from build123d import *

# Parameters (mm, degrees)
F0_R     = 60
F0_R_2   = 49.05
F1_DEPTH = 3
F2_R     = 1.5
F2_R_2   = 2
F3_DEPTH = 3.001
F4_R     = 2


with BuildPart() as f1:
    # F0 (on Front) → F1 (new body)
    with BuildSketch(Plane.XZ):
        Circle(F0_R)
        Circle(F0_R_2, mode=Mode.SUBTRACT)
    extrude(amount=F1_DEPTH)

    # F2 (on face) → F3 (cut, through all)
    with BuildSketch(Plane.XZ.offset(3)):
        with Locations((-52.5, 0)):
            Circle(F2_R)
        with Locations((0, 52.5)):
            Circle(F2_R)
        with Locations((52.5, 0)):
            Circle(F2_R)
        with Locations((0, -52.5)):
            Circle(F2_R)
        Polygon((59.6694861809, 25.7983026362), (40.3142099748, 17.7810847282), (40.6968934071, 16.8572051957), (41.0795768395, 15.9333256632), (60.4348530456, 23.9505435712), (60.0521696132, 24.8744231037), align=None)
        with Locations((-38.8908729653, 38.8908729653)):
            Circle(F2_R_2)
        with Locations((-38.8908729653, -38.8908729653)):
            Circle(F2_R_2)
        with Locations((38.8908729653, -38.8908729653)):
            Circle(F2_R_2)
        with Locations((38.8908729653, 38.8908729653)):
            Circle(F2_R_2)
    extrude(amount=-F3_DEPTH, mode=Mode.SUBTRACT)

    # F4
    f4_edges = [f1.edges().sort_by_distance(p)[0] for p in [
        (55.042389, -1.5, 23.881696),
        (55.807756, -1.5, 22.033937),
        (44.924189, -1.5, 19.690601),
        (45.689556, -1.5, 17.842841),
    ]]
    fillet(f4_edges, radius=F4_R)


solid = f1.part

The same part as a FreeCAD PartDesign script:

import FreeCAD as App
import Part
import Sketcher

V = App.Vector
Q = App.Units.Quantity


def edges_at(feature, points):
    """Names of the edges that pass closest to the given points."""
    edges = feature.Shape.Edges
    near = lambda p: min(range(len(edges)), key=lambda i: edges[i].distToShape(Part.Vertex(*p))[0])
    return sorted({f"Edge{near(p) + 1}" for p in points})


def add_polygon(sketch, points):
    """Adds a closed chain of lines whose ends are joined by coincident constraints."""
    first, n = sketch.GeometryCount, len(points)
    for a, b in zip(points, points[1:] + points[:1]):
        sketch.addGeometry(Part.LineSegment(App.Vector(*a, 0), App.Vector(*b, 0)), False)
    for i in range(n):
        sketch.addConstraint(Sketcher.Constraint("Coincident", first + i, 2, first + (i + 1) % n, 1))

doc = App.newDocument("Part")
params = doc.addObject("Spreadsheet::Sheet", "Params")
for row, (alias, value) in enumerate([
    ("sketch1_diameter", "120 mm"),
    ("sketch1_diameter2", "98.1 mm"),
    ("pad1_length", "3 mm"),
    ("sketch2_diameter", "3 mm"),
    ("sketch2_diameter2", "4 mm"),
    ("sketch2_length", "1 mm"),
    ("sketch2_length2", "20.95 mm"),
    ("fillet_radius", "2 mm"),
], start=1):
    params.set(f"A{row}", alias)
    params.set(f"B{row}", "=" + value)
    params.setAlias(f"B{row}", alias)

body = doc.addObject("PartDesign::Body", "Body")

# Sketch on XZ plane
sketch1 = body.newObject("Sketcher::SketchObject", "Sketch")
sketch1.AttachmentSupport = (doc.getObject("XZ_Plane"), [""])
sketch1.MapMode = "FlatFace"
sketch1.addGeometry(Part.Circle(V(0, 0, 0), V(0, 0, 1), 60), False)
sketch1.addGeometry(Part.Circle(V(0, 0, 0), V(0, 0, 1), 49), False)
sketch1.addConstraint(Sketcher.Constraint("Coincident", 0, 3, -1, 1))
sketch1.addConstraint(Sketcher.Constraint("Coincident", 1, 3, -1, 1))
sketch1.addConstraint(Sketcher.Constraint("Diameter", 0, Q("120 mm")))
sketch1.addConstraint(Sketcher.Constraint("Diameter", 1, Q("98.1 mm")))
sketch1.setExpression("Constraints[2]", "Params.sketch1_diameter")
sketch1.setExpression("Constraints[3]", "Params.sketch1_diameter2")
pad1 = body.newObject("PartDesign::Pad", "Pad")
pad1.Profile = sketch1
pad1.setExpression("Length", "Params.pad1_length")

# Sketch on XZ plane
sketch2 = body.newObject("Sketcher::SketchObject", "Sketch001")
sketch2.AttachmentSupport = (doc.getObject("XZ_Plane"), [""])
sketch2.MapMode = "FlatFace"
sketch2.AttachmentOffset = App.Placement(V(0, 0, 3), App.Rotation())
sketch2.addGeometry(Part.Circle(V(-52.5, 0, 0), V(0, 0, 1), 1.5), False)  # 0
sketch2.addGeometry(Part.Circle(V(0, 52.5, 0), V(0, 0, 1), 1.5), False)  # 1
sketch2.addGeometry(Part.Circle(V(52.5, 0, 0), V(0, 0, 1), 1.5), False)  # 2
sketch2.addGeometry(Part.Circle(V(0, -52.5, 0), V(0, 0, 1), 1.5), False)  # 3
add_polygon(sketch2, [(59.7, 25.8), (40.3, 17.8), (40.7, 16.9), (41.1, 15.9), (60.4, 24), (60.1, 24.9)])  # lines 4-9
sketch2.addGeometry(Part.Circle(V(-38.9, 38.9, 0), V(0, 0, 1), 2), False)  # 10
sketch2.addGeometry(Part.Circle(V(-38.9, -38.9, 0), V(0, 0, 1), 2), False)  # 11
sketch2.addGeometry(Part.Circle(V(38.9, -38.9, 0), V(0, 0, 1), 2), False)  # 12
sketch2.addGeometry(Part.Circle(V(38.9, 38.9, 0), V(0, 0, 1), 2), False)  # 13
sketch2.addConstraint(Sketcher.Constraint("Equal", 0, 1))
sketch2.addConstraint(Sketcher.Constraint("Equal", 1, 2))
sketch2.addConstraint(Sketcher.Constraint("Equal", 2, 3))
sketch2.addConstraint(Sketcher.Constraint("Equal", 10, 11))
sketch2.addConstraint(Sketcher.Constraint("Equal", 11, 12))
sketch2.addConstraint(Sketcher.Constraint("Equal", 12, 13))
sketch2.addConstraint(Sketcher.Constraint("Symmetric", 0, 3, 2, 3, -1, 1))
sketch2.addConstraint(Sketcher.Constraint("Symmetric", 1, 3, 3, 3, -1, 1))
sketch2.addConstraint(Sketcher.Constraint("Symmetric", 10, 3, 12, 3, -1, 1))
sketch2.addConstraint(Sketcher.Constraint("Symmetric", 11, 3, 13, 3, -1, 1))
sketch2.addConstraint(Sketcher.Constraint("Symmetric", 11, 3, 12, 3, -2))
sketch2.addConstraint(Sketcher.Constraint("PointOnObject", 0, 3, -1))
sketch2.addConstraint(Sketcher.Constraint("PointOnObject", 1, 3, -2))
sketch2.addConstraint(Sketcher.Constraint("Perpendicular", 4, 5))
sketch2.addConstraint(Sketcher.Constraint("Parallel", 5, 6))
sketch2.addConstraint(Sketcher.Constraint("Perpendicular", 6, 7))
sketch2.addConstraint(Sketcher.Constraint("Perpendicular", 7, 8))
sketch2.addConstraint(Sketcher.Constraint("Parallel", 8, 9))
sketch2.addConstraint(Sketcher.Constraint("Equal", 5, 6))
sketch2.addConstraint(Sketcher.Constraint("Equal", 6, 8))
sketch2.addConstraint(Sketcher.Constraint("Diameter", 0, Q("3 mm")))
sketch2.addConstraint(Sketcher.Constraint("Diameter", 10, Q("4 mm")))
sketch2.addConstraint(Sketcher.Constraint("Distance", 5, Q("1 mm")))
sketch2.addConstraint(Sketcher.Constraint("Angle", 4, Q("-157.5 deg")))
sketch2.addConstraint(Sketcher.Constraint("DistanceX", 0, 3, 2, 3, Q("105 mm")))
sketch2.addConstraint(Sketcher.Constraint("DistanceY", 3, 3, 1, 3, Q("105 mm")))
sketch2.addConstraint(Sketcher.Constraint("Distance", 4, Q("20.95 mm")))
sketch2.addConstraint(Sketcher.Constraint("DistanceY", 12, 3, 6, 2, Q("54.824199 mm")))
sketch2.addConstraint(Sketcher.Constraint("DistanceX", -1, 1, 4, 2, Q("40.31421 mm")))
sketch2.addConstraint(Sketcher.Constraint("DistanceY", 4, 2, 13, 3, Q("21.109788 mm")))
sketch2.addConstraint(Sketcher.Constraint("DistanceX", 13, 3, 5, 2, Q("1.80602 mm")))
sketch2.setExpression("Constraints[26]", "Params.sketch2_diameter")
sketch2.setExpression("Constraints[27]", "Params.sketch2_diameter2")
sketch2.setExpression("Constraints[28]", "Params.sketch2_length")
sketch2.setExpression("Constraints[32]", "Params.sketch2_length2")
pocket1 = body.newObject("PartDesign::Pocket", "Pocket")
pocket1.Profile = sketch2
pocket1.Type = "ThroughAll"
doc.recompute()

fillet = body.newObject("PartDesign::Fillet", "Fillet")
fillet.Base = (pocket1, edges_at(pocket1, [
    (55.042, -1.5, 23.882),
    (55.808, -1.5, 22.034),
    (44.924, -1.5, 19.691),
    (45.69, -1.5, 17.843),
]))
fillet.setExpression("Radius", "Params.fillet_radius")

doc.recompute()
